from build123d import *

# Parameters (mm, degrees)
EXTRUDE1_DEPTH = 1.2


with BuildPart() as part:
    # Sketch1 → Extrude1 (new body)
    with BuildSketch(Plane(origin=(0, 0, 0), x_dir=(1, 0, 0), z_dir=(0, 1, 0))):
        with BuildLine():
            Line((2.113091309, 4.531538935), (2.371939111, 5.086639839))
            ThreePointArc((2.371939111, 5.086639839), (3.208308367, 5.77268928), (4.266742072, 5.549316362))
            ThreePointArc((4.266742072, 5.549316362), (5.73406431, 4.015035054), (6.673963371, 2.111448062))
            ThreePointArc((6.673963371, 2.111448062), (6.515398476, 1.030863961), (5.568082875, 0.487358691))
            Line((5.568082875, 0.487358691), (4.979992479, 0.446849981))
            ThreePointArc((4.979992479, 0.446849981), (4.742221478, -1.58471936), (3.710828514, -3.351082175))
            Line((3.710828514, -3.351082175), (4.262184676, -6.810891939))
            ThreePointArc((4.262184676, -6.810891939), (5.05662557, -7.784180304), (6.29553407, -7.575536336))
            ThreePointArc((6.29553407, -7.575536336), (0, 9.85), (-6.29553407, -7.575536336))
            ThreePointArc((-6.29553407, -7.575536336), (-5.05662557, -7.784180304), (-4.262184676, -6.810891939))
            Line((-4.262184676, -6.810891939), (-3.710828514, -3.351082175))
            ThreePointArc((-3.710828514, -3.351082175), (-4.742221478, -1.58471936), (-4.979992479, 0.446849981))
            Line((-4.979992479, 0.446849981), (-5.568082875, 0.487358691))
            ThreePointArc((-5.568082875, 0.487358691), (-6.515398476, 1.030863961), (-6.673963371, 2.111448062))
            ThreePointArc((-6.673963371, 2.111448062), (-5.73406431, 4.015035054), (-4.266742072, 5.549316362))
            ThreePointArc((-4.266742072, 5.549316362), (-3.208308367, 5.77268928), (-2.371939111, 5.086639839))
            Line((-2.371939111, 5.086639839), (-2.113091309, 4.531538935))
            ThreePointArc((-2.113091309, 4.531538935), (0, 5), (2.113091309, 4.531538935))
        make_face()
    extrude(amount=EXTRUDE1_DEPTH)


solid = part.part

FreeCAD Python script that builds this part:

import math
import FreeCAD as App
import Part
import Sketcher

V = App.Vector

doc = App.newDocument("Part")
body = doc.addObject("PartDesign::Body", "Body")

sketch1 = body.newObject("Sketcher::SketchObject", "Sketch")
sketch1.AttachmentSupport = (doc.getObject("XZ_Plane"), [""])
sketch1.MapMode = "FlatFace"
sketch1.addGeometry(Part.LineSegment(V(2.113091, -4.531539, 0), V(2.371939, -5.08664, 0)), False)
sketch1.addGeometry(Part.ArcOfCircle(Part.Circle(V(3.504824, -4.558367, 0), V(0, 0, 1), 1.25), math.radians(-155), math.radians(-52.444142)), False)
sketch1.addGeometry(Part.ArcOfCircle(Part.Circle(V(0, 0, 0), V(0, 0, 1), 7), math.radians(-52.444142), math.radians(-17.555858)), False)
sketch1.addGeometry(Part.ArcOfCircle(Part.Circle(V(5.482184, -1.734404, 0), V(0, 0, 1), 1.25), math.radians(-17.555858), math.radians(86.059589)), False)
sketch1.addGeometry(Part.LineSegment(V(5.568083, -0.487359, 0), V(4.979992, -0.44685, 0)), False)
sketch1.addGeometry(Part.ArcOfCircle(Part.Circle(V(0, 0, 0), V(0, 0, 1), 5), math.radians(-5.127364), math.radians(42.083772)), False)
sketch1.addGeometry(Part.LineSegment(V(3.710829, 3.351082, 0), V(4.262185, 6.810892, 0)), False)
sketch1.addGeometry(Part.ArcOfCircle(Part.Circle(V(5.496608, 6.614174, 0), V(0, 0, 1), 1.25), math.radians(50.27224), math.radians(170.945466)), False)
sketch1.addGeometry(Part.ArcOfCircle(Part.Circle(V(0, 0, 0), V(0, 0, 1), 9.85), math.radians(129.72776), math.radians(410.27224)), False)
sketch1.addGeometry(Part.ArcOfCircle(Part.Circle(V(-5.496608, 6.614174, 0), V(0, 0, 1), 1.25), math.radians(9.054534), math.radians(129.72776)), False)
sketch1.addGeometry(Part.LineSegment(V(-4.262185, 6.810892, 0), V(-3.710829, 3.351082, 0)), False)
sketch1.addGeometry(Part.ArcOfCircle(Part.Circle(V(0, 0, 0), V(0, 0, 1), 5), math.radians(137.916228), math.radians(185.127364)), False)
sketch1.addGeometry(Part.LineSegment(V(-4.979992, -0.44685, 0), V(-5.568083, -0.487359, 0)), False)
sketch1.addGeometry(Part.ArcOfCircle(Part.Circle(V(-5.482184, -1.734404, 0), V(0, 0, 1), 1.25), math.radians(93.940411), math.radians(197.555858)), False)
sketch1.addGeometry(Part.ArcOfCircle(Part.Circle(V(0, 0, 0), V(0, 0, 1), 7), math.radians(-162.444142), math.radians(-127.555858)), False)
sketch1.addGeometry(Part.ArcOfCircle(Part.Circle(V(-3.504824, -4.558367, 0), V(0, 0, 1), 1.25), math.radians(-127.555858), math.radians(-25)), False)
sketch1.addGeometry(Part.LineSegment(V(-2.371939, -5.08664, 0), V(-2.113091, -4.531539, 0)), False)
sketch1.addGeometry(Part.ArcOfCircle(Part.Circle(V(0, 0, 0), V(0, 0, 1), 5), math.radians(-115), math.radians(-65)), False)
sketch1.addConstraint(Sketcher.Constraint("Coincident", 0, 2, 1, 1))
sketch1.addConstraint(Sketcher.Constraint("Coincident", 1, 2, 2, 1))
sketch1.addConstraint(Sketcher.Constraint("Coincident", 2, 2, 3, 1))
sketch1.addConstraint(Sketcher.Constraint("Coincident", 3, 2, 4, 1))
sketch1.addConstraint(Sketcher.Constraint("Coincident", 4, 2, 5, 1))
sketch1.addConstraint(Sketcher.Constraint("Coincident", 5, 2, 6, 1))
sketch1.addConstraint(Sketcher.Constraint("Coincident", 6, 2, 7, 2))
sketch1.addConstraint(Sketcher.Constraint("Coincident", 7, 1, 8, 2))
sketch1.addConstraint(Sketcher.Constraint("Coincident", 8, 1, 9, 2))
sketch1.addConstraint(Sketcher.Constraint("Coincident", 9, 1, 10, 1))
sketch1.addConstraint(Sketcher.Constraint("Coincident", 10, 2, 11, 1))
sketch1.addConstraint(Sketcher.Constraint("Coincident", 11, 2, 12, 1))
sketch1.addConstraint(Sketcher.Constraint("Coincident", 12, 2, 13, 1))
sketch1.addConstraint(Sketcher.Constraint("Coincident", 13, 2, 14, 1))
sketch1.addConstraint(Sketcher.Constraint("Coincident", 14, 2, 15, 1))
sketch1.addConstraint(Sketcher.Constraint("Coincident", 15, 2, 16, 1))
sketch1.addConstraint(Sketcher.Constraint("Coincident", 16, 2, 17, 1))
sketch1.addConstraint(Sketcher.Constraint("Coincident", 17, 2, 0, 1))
sketch1.addConstraint(Sketcher.Constraint("Coincident", 2, 3, -1, 1))
sketch1.addConstraint(Sketcher.Constraint("Coincident", 5, 3, -1, 1))
sketch1.addConstraint(Sketcher.Constraint("Coincident", 8, 3, -1, 1))
sketch1.addConstraint(Sketcher.Constraint("Coincident", 11, 3, -1, 1))
sketch1.addConstraint(Sketcher.Constraint("Coincident", 14, 3, -1, 1))
sketch1.addConstraint(Sketcher.Constraint("Coincident", 17, 3, -1, 1))
sketch1.addConstraint(Sketcher.Constraint("Radius", 2, 7.0))
sketch1.addConstraint(Sketcher.Constraint("Radius", 5, 5.0))
sketch1.addConstraint(Sketcher.Constraint("Radius", 11, 5.0))
sketch1.addConstraint(Sketcher.Constraint("Radius", 14, 7.0))
sketch1.addConstraint(Sketcher.Constraint("Radius", 17, 5.0))
sketch1.addConstraint(Sketcher.Constraint("Radius", 1, 1.25))
sketch1.addConstraint(Sketcher.Constraint("Radius", 3, 1.25))
sketch1.addConstraint(Sketcher.Constraint("Radius", 7, 1.25))
sketch1.addConstraint(Sketcher.Constraint("Radius", 8, 9.85))
sketch1.addConstraint(Sketcher.Constraint("Radius", 9, 1.25))
sketch1.addConstraint(Sketcher.Constraint("Radius", 13, 1.25))
sketch1.addConstraint(Sketcher.Constraint("Radius", 15, 1.25))
sketch1.addConstraint(Sketcher.Constraint("DistanceX", 3, 3, 3, 2, 0.085899))
sketch1.addConstraint(Sketcher.Constraint("DistanceY", 2, 2, 4, 2, 1.664598))
sketch1.addConstraint(Sketcher.Constraint("DistanceX", 6, 2, 3, 2, 1.305898))
sketch1.addConstraint(Sketcher.Constraint("DistanceX", 12, 2, 13, 3, 0.085899))
sketch1.addConstraint(Sketcher.Constraint("DistanceY", 13, 2, 11, 2, 1.664598))
sketch1.addConstraint(Sketcher.Constraint("DistanceY", 15, 2, 16, 2, 0.555101))
sketch1.addConstraint(Sketcher.Constraint("DistanceY", 0, 2, 16, 2, 0.555101))
sketch1.addConstraint(Sketcher.Constraint("DistanceY", 0, 2, 17, 2, 0.555101))
sketch1.addConstraint(Sketcher.Constraint("DistanceX", -1, 1, 7, 3, 5.496608))
sketch1.addConstraint(Sketcher.Constraint("DistanceX", 9, 3, -1, 1, 5.496608))
sketch1.addConstraint(Sketcher.Constraint("DistanceX", -1, 1, 0, 2, 2.371939))
sketch1.addConstraint(Sketcher.Constraint("DistanceY", 0, 2, -1, 1, 5.08664))
sketch1.addConstraint(Sketcher.Constraint("DistanceY", 2, 2, -1, 1, 2.111448))
sketch1.addConstraint(Sketcher.Constraint("DistanceY", 3, 2, -1, 1, 0.487359))
sketch1.addConstraint(Sketcher.Constraint("DistanceX", -1, 1, 5, 2, 3.710829))
sketch1.addConstraint(Sketcher.Constraint("DistanceY", -1, 1, 9, 1, 6.810892))
sketch1.addConstraint(Sketcher.Constraint("DistanceX", 10, 2, -1, 1, 3.710829))
sketch1.addConstraint(Sketcher.Constraint("DistanceY", 11, 2, -1, 1, 0.44685))
sketch1.addConstraint(Sketcher.Constraint("DistanceY", 12, 2, -1, 1, 0.487359))
sketch1.addConstraint(Sketcher.Constraint("DistanceX", 15, 2, -1, 1, 2.371939))
sketch1.addConstraint(Sketcher.Constraint("DistanceX", 1, 3, 1, 2, 0.761918))
sketch1.addConstraint(Sketcher.Constraint("DistanceX", 6, 2, 7, 1, 2.033349))
sketch1.addConstraint(Sketcher.Constraint("DistanceX", 8, 1, 13, 3, 0.81335))
sketch1.addConstraint(Sketcher.Constraint("DistanceX", 14, 2, 15, 3, 0.761918))
pad1 = body.newObject("PartDesign::Pad", "Pad")
pad1.Profile = sketch1
pad1.Length = 1.2
pad1.Reversed = True

doc.recompute()
